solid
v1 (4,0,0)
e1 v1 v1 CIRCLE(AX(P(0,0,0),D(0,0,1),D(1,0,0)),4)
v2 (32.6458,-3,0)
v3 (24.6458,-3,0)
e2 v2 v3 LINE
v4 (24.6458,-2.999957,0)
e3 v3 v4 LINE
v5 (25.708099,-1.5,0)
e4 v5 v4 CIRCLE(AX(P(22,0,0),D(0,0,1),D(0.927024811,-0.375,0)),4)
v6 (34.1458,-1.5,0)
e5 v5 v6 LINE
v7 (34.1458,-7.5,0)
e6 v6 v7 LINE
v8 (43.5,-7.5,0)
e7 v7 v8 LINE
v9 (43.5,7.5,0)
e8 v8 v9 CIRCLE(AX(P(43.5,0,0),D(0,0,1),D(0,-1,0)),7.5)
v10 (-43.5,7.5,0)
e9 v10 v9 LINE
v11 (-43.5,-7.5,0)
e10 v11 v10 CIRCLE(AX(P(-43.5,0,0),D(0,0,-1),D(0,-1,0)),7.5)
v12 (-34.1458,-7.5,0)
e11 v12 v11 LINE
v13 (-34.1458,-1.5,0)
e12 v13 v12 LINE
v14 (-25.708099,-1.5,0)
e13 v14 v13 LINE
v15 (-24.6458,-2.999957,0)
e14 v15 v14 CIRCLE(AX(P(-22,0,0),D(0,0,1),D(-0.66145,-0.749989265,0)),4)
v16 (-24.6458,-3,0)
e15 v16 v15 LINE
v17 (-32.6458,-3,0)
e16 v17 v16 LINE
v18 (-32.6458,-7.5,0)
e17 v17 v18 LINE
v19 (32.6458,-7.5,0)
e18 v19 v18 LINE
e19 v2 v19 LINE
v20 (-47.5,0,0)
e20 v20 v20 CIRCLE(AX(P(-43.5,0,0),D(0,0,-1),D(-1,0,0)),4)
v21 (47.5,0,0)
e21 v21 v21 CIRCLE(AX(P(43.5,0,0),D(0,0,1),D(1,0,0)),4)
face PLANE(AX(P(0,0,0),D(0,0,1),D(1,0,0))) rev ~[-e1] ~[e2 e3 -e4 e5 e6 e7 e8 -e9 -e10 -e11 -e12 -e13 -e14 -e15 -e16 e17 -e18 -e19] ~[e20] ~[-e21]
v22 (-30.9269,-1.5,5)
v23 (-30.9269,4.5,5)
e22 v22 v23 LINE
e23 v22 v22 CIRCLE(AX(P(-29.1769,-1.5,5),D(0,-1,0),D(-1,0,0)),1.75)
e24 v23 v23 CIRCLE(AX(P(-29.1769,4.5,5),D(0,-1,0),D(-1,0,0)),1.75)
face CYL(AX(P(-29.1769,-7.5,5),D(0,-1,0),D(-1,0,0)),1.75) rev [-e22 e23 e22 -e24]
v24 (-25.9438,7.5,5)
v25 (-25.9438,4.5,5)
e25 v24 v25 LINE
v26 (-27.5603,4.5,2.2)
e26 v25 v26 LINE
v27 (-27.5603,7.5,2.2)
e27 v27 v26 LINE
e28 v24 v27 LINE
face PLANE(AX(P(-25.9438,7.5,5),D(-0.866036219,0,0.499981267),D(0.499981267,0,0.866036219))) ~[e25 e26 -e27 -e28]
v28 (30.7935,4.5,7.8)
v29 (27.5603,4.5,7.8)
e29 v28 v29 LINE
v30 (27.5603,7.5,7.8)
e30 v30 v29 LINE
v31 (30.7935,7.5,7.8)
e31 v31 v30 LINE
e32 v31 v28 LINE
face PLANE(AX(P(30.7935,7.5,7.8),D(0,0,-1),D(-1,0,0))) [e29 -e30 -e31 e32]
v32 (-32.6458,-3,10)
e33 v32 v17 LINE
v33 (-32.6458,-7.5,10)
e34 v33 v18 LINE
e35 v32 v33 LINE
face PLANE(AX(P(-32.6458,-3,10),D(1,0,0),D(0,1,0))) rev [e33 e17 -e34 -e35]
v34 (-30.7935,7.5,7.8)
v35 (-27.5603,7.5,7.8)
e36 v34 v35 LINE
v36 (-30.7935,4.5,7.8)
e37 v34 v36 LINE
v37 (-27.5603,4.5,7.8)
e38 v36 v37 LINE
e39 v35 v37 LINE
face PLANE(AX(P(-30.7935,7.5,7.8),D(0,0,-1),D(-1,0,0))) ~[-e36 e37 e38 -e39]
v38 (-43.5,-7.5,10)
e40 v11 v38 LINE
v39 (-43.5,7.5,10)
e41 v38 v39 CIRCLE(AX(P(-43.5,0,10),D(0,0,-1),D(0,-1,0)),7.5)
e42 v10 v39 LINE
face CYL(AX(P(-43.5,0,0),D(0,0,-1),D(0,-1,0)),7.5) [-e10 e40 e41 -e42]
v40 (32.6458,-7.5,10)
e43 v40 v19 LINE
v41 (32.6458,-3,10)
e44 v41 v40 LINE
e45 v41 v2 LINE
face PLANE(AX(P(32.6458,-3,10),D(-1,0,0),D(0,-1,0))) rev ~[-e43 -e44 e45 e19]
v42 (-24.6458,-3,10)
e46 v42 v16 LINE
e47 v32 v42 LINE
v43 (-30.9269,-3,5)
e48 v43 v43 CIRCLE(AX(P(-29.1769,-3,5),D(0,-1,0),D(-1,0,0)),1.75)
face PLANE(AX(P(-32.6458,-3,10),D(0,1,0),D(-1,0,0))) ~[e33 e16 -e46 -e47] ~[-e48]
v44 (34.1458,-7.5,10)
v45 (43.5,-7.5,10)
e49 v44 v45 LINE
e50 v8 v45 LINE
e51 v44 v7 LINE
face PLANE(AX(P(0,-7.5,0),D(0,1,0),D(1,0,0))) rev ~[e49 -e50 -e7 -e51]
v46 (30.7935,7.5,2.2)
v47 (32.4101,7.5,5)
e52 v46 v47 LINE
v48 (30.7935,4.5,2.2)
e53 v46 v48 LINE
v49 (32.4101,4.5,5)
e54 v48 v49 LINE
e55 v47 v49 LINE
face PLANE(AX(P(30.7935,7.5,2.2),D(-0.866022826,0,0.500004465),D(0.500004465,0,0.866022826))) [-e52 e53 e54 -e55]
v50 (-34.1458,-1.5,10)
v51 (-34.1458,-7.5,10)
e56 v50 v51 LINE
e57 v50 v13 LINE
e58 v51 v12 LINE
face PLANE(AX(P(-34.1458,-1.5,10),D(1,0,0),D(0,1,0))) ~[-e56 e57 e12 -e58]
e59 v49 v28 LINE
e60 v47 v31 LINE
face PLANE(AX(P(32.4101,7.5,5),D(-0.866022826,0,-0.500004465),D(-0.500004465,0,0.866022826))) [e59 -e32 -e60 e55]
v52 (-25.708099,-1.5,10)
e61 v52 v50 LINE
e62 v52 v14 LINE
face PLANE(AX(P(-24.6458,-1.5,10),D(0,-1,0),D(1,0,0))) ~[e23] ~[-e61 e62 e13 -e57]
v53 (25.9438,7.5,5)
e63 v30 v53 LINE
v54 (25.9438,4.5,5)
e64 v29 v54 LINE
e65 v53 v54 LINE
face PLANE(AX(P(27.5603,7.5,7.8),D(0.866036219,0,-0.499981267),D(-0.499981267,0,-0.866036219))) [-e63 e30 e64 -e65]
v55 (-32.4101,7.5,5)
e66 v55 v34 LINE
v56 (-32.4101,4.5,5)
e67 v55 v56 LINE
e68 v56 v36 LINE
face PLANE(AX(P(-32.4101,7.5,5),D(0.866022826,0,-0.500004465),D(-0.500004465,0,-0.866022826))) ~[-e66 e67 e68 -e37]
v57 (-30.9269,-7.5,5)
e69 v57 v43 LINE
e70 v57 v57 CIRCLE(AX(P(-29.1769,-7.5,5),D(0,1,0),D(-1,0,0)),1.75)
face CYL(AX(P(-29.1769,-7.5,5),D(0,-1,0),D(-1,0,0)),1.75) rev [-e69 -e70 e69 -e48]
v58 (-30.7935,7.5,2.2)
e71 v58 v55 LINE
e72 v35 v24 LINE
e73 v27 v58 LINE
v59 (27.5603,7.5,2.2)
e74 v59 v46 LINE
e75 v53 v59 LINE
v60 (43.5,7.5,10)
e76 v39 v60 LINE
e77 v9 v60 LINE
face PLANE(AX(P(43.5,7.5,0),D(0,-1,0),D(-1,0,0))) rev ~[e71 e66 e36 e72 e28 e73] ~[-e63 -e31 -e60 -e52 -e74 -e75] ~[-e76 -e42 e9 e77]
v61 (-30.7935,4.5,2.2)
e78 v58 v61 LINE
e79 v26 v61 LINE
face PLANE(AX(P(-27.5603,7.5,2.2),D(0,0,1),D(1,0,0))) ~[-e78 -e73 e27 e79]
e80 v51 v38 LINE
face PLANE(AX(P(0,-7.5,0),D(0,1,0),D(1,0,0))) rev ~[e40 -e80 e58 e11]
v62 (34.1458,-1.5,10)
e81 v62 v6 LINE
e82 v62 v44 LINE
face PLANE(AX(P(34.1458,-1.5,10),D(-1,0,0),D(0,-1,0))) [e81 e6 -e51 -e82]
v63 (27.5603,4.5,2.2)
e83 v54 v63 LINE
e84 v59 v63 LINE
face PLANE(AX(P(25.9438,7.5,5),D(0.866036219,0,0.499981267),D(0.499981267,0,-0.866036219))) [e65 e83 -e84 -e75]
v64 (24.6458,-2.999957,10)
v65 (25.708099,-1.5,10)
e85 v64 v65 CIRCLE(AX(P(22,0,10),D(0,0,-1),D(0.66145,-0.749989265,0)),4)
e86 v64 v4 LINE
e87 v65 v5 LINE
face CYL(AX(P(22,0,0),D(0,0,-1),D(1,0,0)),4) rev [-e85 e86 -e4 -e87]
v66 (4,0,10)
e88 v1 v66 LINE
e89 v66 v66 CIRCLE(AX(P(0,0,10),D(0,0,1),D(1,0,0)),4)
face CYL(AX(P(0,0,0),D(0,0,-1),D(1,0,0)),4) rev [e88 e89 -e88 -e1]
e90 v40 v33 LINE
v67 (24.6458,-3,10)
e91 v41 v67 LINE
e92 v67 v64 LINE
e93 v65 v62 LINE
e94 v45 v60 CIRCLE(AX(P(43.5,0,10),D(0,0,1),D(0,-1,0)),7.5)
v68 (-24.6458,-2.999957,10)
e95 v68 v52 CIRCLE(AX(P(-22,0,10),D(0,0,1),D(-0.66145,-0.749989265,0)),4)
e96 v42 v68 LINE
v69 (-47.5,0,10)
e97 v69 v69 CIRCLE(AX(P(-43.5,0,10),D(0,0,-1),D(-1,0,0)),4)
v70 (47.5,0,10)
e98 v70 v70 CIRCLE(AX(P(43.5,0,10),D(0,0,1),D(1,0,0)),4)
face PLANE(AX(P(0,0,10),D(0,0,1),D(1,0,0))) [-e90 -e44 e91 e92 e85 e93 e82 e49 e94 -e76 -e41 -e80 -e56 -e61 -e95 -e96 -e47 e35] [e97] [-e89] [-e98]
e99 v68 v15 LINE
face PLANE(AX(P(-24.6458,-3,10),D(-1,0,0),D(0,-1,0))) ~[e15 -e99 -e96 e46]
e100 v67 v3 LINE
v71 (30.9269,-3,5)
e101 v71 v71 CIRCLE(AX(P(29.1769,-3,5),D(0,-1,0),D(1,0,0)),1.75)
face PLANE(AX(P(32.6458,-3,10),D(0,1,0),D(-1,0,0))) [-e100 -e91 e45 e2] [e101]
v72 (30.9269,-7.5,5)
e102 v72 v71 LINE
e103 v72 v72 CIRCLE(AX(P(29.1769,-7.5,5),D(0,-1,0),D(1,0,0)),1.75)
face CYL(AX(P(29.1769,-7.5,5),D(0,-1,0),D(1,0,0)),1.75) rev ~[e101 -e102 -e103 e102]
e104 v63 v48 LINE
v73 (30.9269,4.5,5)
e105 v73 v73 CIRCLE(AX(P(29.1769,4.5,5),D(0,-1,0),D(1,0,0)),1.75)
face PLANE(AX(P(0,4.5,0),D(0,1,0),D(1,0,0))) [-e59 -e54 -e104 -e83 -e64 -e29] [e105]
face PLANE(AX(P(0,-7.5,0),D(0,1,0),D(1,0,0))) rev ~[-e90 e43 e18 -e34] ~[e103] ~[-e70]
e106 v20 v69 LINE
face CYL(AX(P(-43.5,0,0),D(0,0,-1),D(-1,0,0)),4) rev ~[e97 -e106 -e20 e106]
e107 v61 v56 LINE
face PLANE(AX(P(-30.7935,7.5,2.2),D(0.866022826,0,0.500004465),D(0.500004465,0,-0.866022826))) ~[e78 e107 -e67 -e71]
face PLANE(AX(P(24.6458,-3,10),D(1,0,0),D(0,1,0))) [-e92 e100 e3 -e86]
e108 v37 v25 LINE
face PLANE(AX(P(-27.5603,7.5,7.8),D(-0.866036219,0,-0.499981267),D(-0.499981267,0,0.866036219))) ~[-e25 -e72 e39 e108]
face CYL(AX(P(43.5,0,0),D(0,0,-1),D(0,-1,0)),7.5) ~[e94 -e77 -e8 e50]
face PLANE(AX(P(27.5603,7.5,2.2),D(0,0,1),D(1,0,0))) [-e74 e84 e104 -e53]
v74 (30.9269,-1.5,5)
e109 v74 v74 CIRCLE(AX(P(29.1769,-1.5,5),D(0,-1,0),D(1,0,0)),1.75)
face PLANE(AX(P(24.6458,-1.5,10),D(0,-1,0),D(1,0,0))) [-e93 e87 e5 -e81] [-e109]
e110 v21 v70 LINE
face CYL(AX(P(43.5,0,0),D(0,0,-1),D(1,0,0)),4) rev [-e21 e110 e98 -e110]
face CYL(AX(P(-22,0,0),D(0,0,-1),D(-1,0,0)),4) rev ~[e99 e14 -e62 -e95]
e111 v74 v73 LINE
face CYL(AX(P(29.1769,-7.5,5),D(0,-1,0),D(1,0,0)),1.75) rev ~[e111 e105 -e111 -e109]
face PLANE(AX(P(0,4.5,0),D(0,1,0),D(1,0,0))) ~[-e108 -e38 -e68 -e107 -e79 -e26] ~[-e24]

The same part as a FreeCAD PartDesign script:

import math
import FreeCAD as App
import Part
import Sketcher
Q = App.Units.Quantity

doc = App.newDocument("Part")
body = doc.addObject("PartDesign::Body", "Body")

# Sketch on XY plane
sketch1 = body.newObject("Sketcher::SketchObject", "Sketch")
sketch1.AttachmentSupport = (doc.getObject("XY_Plane"), [""])
sketch1.MapMode = "FlatFace"
sketch1.addGeometry([
    Part.ArcOfCircle(Part.Circle(App.Vector(0, 0, 0), App.Vector(0, 0, 1), 7.5), math.radians(90), math.radians(270)),  # 0
    Part.LineSegment(App.Vector(0, -7.5, 0), App.Vector(43.5, -7.5, 0)),  # 1
    Part.ArcOfCircle(Part.Circle(App.Vector(43.5, 0, 0), App.Vector(0, 0, 1), 7.5), math.radians(-90), math.radians(90)),  # 2
    Part.LineSegment(App.Vector(43.5, 7.5, 0), App.Vector(0, 7.5, 0)),  # 3
    Part.Circle(App.Vector(0, 0, 0), App.Vector(0, 0, 1), 4),  # 4
    Part.Circle(App.Vector(22, 0, 0), App.Vector(0, 0, 1), 4),  # 5
    Part.Circle(App.Vector(43.5, 0, 0), App.Vector(0, 0, 1), 4),  # 6
], False)
sketch1.addConstraint([
    Sketcher.Constraint("Tangent", 0, 2, 1, 1),
    Sketcher.Constraint("Tangent", 1, 2, 2, 1),
    Sketcher.Constraint("Tangent", 2, 2, 3, 1),
    Sketcher.Constraint("Tangent", 3, 2, 0, 1),
    Sketcher.Constraint("Horizontal", 1),
    Sketcher.Constraint("Horizontal", 3),
    Sketcher.Constraint("Coincident", 0, 3, -1, 1),
    Sketcher.Constraint("Coincident", 4, 3, -1, 1),
    Sketcher.Constraint("Coincident", 6, 3, 2, 3),
    Sketcher.Constraint("Equal", 4, 5),
    Sketcher.Constraint("Equal", 5, 6),
    Sketcher.Constraint("PointOnObject", 5, 3, -1),
    Sketcher.Constraint("Diameter", 4, 8.0),
    Sketcher.Constraint("Radius", 0, 7.5),
    Sketcher.Constraint("DistanceX", 1, 1, 1, 2, 43.5),
    Sketcher.Constraint("DistanceX", -1, 1, 5, 3, 22.0),
])
pad1 = body.newObject("PartDesign::Pad", "Pad")
pad1.Profile = sketch1
pad1.Length = 10

# Sketch on XY plane
sketch2 = body.newObject("Sketcher::SketchObject", "Sketch001")
sketch2.AttachmentSupport = (doc.getObject("XY_Plane"), [""])
sketch2.MapMode = "FlatFace"
sketch2.AttachmentOffset = App.Placement(App.Vector(0, 0, 10), App.Rotation())
sketch2.addGeometry([
    Part.LineSegment(App.Vector(34.1458, -1.5, 0), App.Vector(24.6458, -1.5, 0)),  # 0
    Part.LineSegment(App.Vector(24.6458, -1.5, 0), App.Vector(24.6458, -3, 0)),  # 1
    Part.LineSegment(App.Vector(24.6458, -3, 0), App.Vector(32.6458, -3, 0)),  # 2
    Part.LineSegment(App.Vector(32.6458, -3, 0), App.Vector(32.6458, -7.5, 0)),  # 3
    Part.LineSegment(App.Vector(32.6458, -7.5, 0), App.Vector(34.1458, -7.5, 0)),  # 4
    Part.LineSegment(App.Vector(34.1458, -7.5, 0), App.Vector(34.1458, -1.5, 0)),  # 5
], False)
sketch2.addConstraint([
    Sketcher.Constraint("Coincident", 0, 2, 1, 1),
    Sketcher.Constraint("Coincident", 1, 2, 2, 1),
    Sketcher.Constraint("Coincident", 2, 2, 3, 1),
    Sketcher.Constraint("Coincident", 3, 2, 4, 1),
    Sketcher.Constraint("Coincident", 4, 2, 5, 1),
    Sketcher.Constraint("Coincident", 5, 2, 0, 1),
    Sketcher.Constraint("Horizontal", 0),
    Sketcher.Constraint("Vertical", 1),
    Sketcher.Constraint("Horizontal", 2),
    Sketcher.Constraint("Vertical", 3),
    Sketcher.Constraint("Horizontal", 4),
    Sketcher.Constraint("Vertical", 5),
    Sketcher.Constraint("Equal", 4, 1),
    Sketcher.Constraint("DistanceX", 2, 1, 2, 2, 8.0),
    Sketcher.Constraint("DistanceX", 4, 1, 4, 2, 1.5),
    Sketcher.Constraint("DistanceY", 0, 2, -1, 1, 1.5),
    Sketcher.Constraint("DistanceY", 5, 1, 5, 2, 6.0),
    Sketcher.Constraint("DistanceX", -1, 1, 0, 2, 24.6458),
])
pocket1 = body.newObject("PartDesign::Pocket", "Pocket")
pocket1.Profile = sketch2
pocket1.Type = "ThroughAll"

# Sketch on XZ plane
sketch3 = body.newObject("Sketcher::SketchObject", "Sketch002")
sketch3.AttachmentSupport = (doc.getObject("XZ_Plane"), [""])
sketch3.MapMode = "FlatFace"
sketch3.AttachmentOffset = App.Placement(App.Vector(0, 0, 7.5), App.Rotation())
sketch3.addGeometry(Part.Circle(App.Vector(29.1769, 5, 0), App.Vector(0, 0, 1), 1.75), False)
sketch3.addConstraint([
    Sketcher.Constraint("Diameter", 0, 3.5),
    Sketcher.Constraint("DistanceY", -1, 1, 0, 3, 5.0),
    Sketcher.Constraint("DistanceX", -1, 1, 0, 3, 29.177),
])
pocket2 = body.newObject("PartDesign::Pocket", "Pocket001")
pocket2.Profile = sketch3
pocket2.Type = "ThroughAll"

# Sketch on XZ plane
sketch4 = body.newObject("Sketcher::SketchObject", "Sketch003")
sketch4.AttachmentSupport = (doc.getObject("XZ_Plane"), [""])
sketch4.MapMode = "FlatFace"
sketch4.AttachmentOffset = App.Placement(App.Vector(0, 0, -7.5), App.Rotation())
sketch4.addGeometry([
    Part.LineSegment(App.Vector(32.4101, 5, 0), App.Vector(30.7935, 2.2, 0)),  # 0
    Part.LineSegment(App.Vector(30.7935, 2.2, 0), App.Vector(27.5603, 2.2, 0)),  # 1
    Part.LineSegment(App.Vector(27.5603, 2.2, 0), App.Vector(25.9438, 5, 0)),  # 2
    Part.LineSegment(App.Vector(25.9438, 5, 0), App.Vector(27.5603, 7.8, 0)),  # 3
    Part.LineSegment(App.Vector(27.5603, 7.8, 0), App.Vector(30.7935, 7.8, 0)),  # 4
    Part.LineSegment(App.Vector(30.7935, 7.8, 0), App.Vector(32.4101, 5, 0)),  # 5
], False)
sketch4.addConstraint([
    Sketcher.Constraint("Coincident", 0, 2, 1, 1),
    Sketcher.Constraint("Coincident", 1, 2, 2, 1),
    Sketcher.Constraint("Coincident", 2, 2, 3, 1),
    Sketcher.Constraint("Coincident", 3, 2, 4, 1),
    Sketcher.Constraint("Coincident", 4, 2, 5, 1),
    Sketcher.Constraint("Coincident", 5, 2, 0, 1),
    Sketcher.Constraint("Horizontal", 1),
    Sketcher.Constraint("Horizontal", 4),
    Sketcher.Constraint("Parallel", 0, 3),
    Sketcher.Constraint("Parallel", 2, 5),
    Sketcher.Constraint("Horizontal", 2, 2, 5, 2),
    Sketcher.Constraint("Vertical", 1, 2, 3, 2),
    Sketcher.Constraint("Vertical", 0, 2, 4, 2),
    Sketcher.Constraint("DistanceY", 1, 2, 3, 2, 5.6),
    Sketcher.Constraint("Angle", 0, Q("-120.0003 deg")),
    Sketcher.Constraint("DistanceY", -1, 1, 2, 2, 5.0),
    Sketcher.Constraint("DistanceX", -1, 1, 5, 2, 32.41),
    Sketcher.Constraint("DistanceX", 1, 2, 1, 1, 3.2332),
])
pocket3 = body.newObject("PartDesign::Pocket", "Pocket002")
pocket3.Profile = sketch4
pocket3.Length = 3
pocket3.Reversed = True
doc.recompute()

mirrored = body.newObject("PartDesign::Mirrored", "Mirrored")
mirrored.Originals = [pad1, pocket1, pocket2, pocket3]
mirrored.MirrorPlane = (doc.getObject("YZ_Plane"), [""])
body.Tip = mirrored

doc.recompute()
